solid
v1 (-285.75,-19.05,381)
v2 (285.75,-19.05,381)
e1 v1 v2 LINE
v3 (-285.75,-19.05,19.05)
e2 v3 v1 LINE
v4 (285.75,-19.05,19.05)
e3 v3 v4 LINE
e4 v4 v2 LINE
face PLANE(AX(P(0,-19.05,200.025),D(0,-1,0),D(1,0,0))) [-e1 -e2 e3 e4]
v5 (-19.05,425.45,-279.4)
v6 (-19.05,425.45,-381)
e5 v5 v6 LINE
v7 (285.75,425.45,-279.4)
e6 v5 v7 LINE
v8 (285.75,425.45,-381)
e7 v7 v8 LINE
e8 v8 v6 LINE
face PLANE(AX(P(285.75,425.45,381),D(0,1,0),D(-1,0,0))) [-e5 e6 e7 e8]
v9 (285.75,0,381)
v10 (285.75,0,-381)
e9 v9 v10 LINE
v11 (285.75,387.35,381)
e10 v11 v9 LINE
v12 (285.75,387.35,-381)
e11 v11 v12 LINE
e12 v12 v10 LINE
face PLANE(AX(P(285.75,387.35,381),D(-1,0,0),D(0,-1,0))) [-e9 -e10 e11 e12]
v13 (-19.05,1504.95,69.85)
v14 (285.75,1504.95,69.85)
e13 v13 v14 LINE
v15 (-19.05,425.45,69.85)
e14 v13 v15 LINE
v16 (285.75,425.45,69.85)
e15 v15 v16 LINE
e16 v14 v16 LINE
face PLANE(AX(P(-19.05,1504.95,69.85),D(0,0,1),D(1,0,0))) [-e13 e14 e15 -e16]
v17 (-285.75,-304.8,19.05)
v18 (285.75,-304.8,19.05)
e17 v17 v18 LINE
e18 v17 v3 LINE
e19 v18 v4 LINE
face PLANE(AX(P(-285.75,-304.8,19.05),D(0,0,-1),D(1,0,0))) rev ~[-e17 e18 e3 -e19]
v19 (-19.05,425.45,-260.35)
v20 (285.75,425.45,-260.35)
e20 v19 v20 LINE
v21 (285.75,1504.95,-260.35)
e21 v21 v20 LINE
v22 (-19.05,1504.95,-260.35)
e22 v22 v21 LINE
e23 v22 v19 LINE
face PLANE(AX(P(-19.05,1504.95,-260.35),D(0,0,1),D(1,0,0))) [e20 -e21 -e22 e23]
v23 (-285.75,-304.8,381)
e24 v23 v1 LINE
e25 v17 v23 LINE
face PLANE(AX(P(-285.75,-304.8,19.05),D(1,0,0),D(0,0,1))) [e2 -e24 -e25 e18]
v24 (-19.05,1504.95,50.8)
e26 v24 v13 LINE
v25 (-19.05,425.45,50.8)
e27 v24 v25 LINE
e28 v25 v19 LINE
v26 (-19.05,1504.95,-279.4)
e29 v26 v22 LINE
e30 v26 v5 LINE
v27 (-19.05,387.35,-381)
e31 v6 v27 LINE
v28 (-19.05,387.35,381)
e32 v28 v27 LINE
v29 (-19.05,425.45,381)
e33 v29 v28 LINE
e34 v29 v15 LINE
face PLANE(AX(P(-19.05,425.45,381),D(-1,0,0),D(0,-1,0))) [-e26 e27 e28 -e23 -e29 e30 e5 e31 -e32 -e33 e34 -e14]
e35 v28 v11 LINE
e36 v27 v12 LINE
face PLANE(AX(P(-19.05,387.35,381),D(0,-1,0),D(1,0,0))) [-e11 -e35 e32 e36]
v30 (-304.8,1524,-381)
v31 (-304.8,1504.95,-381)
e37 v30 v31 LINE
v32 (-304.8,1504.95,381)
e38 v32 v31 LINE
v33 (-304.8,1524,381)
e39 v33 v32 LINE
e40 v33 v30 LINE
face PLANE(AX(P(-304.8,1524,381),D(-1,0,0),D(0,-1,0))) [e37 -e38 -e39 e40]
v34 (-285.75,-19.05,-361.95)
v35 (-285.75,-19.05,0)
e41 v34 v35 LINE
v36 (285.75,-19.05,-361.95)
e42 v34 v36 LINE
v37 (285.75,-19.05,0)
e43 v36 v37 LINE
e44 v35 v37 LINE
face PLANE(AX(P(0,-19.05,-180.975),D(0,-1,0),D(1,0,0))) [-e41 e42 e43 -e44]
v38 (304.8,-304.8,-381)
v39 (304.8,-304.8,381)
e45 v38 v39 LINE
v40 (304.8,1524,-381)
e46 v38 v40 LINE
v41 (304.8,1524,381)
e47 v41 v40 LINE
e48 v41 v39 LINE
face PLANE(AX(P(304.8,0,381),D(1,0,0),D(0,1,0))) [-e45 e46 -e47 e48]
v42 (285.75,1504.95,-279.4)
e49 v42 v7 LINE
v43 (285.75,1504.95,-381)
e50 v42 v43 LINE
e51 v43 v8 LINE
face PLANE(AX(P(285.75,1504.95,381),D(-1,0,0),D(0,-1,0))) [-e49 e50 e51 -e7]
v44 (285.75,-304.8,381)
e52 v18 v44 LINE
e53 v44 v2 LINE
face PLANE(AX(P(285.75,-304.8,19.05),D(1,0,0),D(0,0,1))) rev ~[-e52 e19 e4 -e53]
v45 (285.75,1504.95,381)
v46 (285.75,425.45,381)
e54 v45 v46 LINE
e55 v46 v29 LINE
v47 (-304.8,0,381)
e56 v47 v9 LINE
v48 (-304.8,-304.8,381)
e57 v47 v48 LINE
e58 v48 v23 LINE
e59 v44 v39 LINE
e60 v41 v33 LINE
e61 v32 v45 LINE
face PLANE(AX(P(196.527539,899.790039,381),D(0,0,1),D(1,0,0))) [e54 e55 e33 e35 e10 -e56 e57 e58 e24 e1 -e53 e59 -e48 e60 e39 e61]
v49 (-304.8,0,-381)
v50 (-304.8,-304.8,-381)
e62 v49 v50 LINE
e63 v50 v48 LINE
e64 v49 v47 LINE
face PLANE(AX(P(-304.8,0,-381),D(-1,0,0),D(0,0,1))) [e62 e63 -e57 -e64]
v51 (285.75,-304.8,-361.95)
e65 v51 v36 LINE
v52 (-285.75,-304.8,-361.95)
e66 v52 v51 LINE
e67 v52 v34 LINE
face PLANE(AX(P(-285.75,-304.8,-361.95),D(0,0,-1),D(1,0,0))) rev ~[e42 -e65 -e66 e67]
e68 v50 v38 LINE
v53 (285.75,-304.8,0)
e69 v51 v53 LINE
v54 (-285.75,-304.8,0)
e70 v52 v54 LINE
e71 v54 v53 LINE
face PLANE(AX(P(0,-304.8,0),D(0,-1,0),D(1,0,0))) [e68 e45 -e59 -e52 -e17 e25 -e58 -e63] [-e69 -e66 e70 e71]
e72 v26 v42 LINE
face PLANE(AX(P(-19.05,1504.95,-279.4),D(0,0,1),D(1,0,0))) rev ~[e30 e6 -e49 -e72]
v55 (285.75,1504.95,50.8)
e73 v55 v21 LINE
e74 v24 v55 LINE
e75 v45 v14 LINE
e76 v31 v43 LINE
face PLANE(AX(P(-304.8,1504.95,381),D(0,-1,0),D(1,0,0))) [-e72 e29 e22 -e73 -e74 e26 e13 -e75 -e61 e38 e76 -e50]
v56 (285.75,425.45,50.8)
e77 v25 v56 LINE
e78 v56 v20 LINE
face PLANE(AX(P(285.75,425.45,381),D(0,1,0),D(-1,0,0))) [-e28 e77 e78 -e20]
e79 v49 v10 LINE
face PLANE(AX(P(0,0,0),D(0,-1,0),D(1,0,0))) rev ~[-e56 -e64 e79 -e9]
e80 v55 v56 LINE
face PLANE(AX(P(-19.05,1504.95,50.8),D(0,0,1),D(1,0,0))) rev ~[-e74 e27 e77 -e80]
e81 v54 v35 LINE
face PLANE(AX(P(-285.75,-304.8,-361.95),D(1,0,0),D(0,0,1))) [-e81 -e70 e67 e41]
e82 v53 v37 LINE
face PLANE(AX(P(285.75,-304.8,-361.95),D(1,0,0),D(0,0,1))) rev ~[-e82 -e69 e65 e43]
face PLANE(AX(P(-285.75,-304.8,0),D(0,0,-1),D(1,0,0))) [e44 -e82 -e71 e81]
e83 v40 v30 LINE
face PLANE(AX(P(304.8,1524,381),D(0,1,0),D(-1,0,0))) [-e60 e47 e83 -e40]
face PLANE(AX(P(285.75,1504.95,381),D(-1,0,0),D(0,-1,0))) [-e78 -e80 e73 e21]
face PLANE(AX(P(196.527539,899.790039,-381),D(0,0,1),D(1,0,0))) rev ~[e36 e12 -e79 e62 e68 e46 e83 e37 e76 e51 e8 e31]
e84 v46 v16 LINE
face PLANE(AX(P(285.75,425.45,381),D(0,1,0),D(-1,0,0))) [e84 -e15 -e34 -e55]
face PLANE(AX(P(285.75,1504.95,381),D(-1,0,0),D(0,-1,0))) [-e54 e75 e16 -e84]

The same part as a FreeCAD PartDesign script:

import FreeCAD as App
import Part
import Sketcher

V = App.Vector
Q = App.Units.Quantity

doc = App.newDocument("Part")
body = doc.addObject("PartDesign::Body", "Body")

# Sketch on XZ plane
sketch1 = body.newObject("Sketcher::SketchObject", "Sketch")
sketch1.AttachmentSupport = (doc.getObject("XZ_Plane"), [""])
sketch1.MapMode = "FlatFace"
sketch1.addGeometry(Part.LineSegment(V(-304.8, 381, 0), V(-304.8, -381, 0)), False)
sketch1.addGeometry(Part.LineSegment(V(-304.8, -381, 0), V(304.8, -381, 0)), False)
sketch1.addGeometry(Part.LineSegment(V(304.8, -381, 0), V(304.8, 381, 0)), False)
sketch1.addGeometry(Part.LineSegment(V(304.8, 381, 0), V(-304.8, 381, 0)), False)
sketch1.addConstraint(Sketcher.Constraint("Coincident", 0, 2, 1, 1))
sketch1.addConstraint(Sketcher.Constraint("Coincident", 1, 2, 2, 1))
sketch1.addConstraint(Sketcher.Constraint("Coincident", 2, 2, 3, 1))
sketch1.addConstraint(Sketcher.Constraint("Coincident", 3, 2, 0, 1))
sketch1.addConstraint(Sketcher.Constraint("Vertical", 0))
sketch1.addConstraint(Sketcher.Constraint("Horizontal", 1))
sketch1.addConstraint(Sketcher.Constraint("Vertical", 2))
sketch1.addConstraint(Sketcher.Constraint("Horizontal", 3))
sketch1.addConstraint(Sketcher.Constraint("Symmetric", 0, 2, 2, 2, -1, 1))
sketch1.addConstraint(Sketcher.Constraint("DistanceX", 1, 1, 1, 2, Q("24 in")))
sketch1.addConstraint(Sketcher.Constraint("DistanceY", 0, 2, 0, 1, Q("30 in")))
pad1 = body.newObject("PartDesign::Pad", "Pad")
pad1.Profile = sketch1
pad1.Length = Q("12 in")

# Sketch on XZ plane
sketch2 = body.newObject("Sketcher::SketchObject", "Sketch001")
sketch2.AttachmentSupport = (doc.getObject("XZ_Plane"), [""])
sketch2.MapMode = "FlatFace"
sketch2.AttachmentOffset = App.Placement(V(0, 0, 12 * 25.4), App.Rotation())
sketch2.addGeometry(Part.LineSegment(V(-285.75, 381, 0), V(-285.75, 19.05, 0)), False)
sketch2.addGeometry(Part.LineSegment(V(-285.75, 19.05, 0), V(285.75, 19.05, 0)), False)
sketch2.addGeometry(Part.LineSegment(V(285.75, 19.05, 0), V(285.75, 381, 0)), False)
sketch2.addGeometry(Part.LineSegment(V(285.75, 381, 0), V(-285.75, 381, 0)), False)
sketch2.addGeometry(Part.LineSegment(V(-285.75, 0, 0), V(-285.75, -361.95, 0)), False)
sketch2.addGeometry(Part.LineSegment(V(-285.75, -361.95, 0), V(285.75, -361.95, 0)), False)
sketch2.addGeometry(Part.LineSegment(V(285.75, -361.95, 0), V(285.75, 0, 0)), False)
sketch2.addGeometry(Part.LineSegment(V(285.75, 0, 0), V(-285.75, 0, 0)), False)
sketch2.addConstraint(Sketcher.Constraint("Coincident", 0, 2, 1, 1))
sketch2.addConstraint(Sketcher.Constraint("Coincident", 1, 2, 2, 1))
sketch2.addConstraint(Sketcher.Constraint("Coincident", 2, 2, 3, 1))
sketch2.addConstraint(Sketcher.Constraint("Coincident", 3, 2, 0, 1))
sketch2.addConstraint(Sketcher.Constraint("Coincident", 4, 2, 5, 1))
sketch2.addConstraint(Sketcher.Constraint("Coincident", 5, 2, 6, 1))
sketch2.addConstraint(Sketcher.Constraint("Coincident", 6, 2, 7, 1))
sketch2.addConstraint(Sketcher.Constraint("Coincident", 7, 2, 4, 1))
sketch2.addConstraint(Sketcher.Constraint("Vertical", 0))
sketch2.addConstraint(Sketcher.Constraint("Horizontal", 1))
sketch2.addConstraint(Sketcher.Constraint("Vertical", 2))
sketch2.addConstraint(Sketcher.Constraint("Horizontal", 3))
sketch2.addConstraint(Sketcher.Constraint("Vertical", 4))
sketch2.addConstraint(Sketcher.Constraint("Horizontal", 5))
sketch2.addConstraint(Sketcher.Constraint("Vertical", 6))
sketch2.addConstraint(Sketcher.Constraint("Horizontal", 7))
sketch2.addConstraint(Sketcher.Constraint("Symmetric", 6, 2, 7, 2, -1, 1))
sketch2.addConstraint(Sketcher.Constraint("Vertical", 3, 2, 4, 2))
sketch2.addConstraint(Sketcher.Constraint("Vertical", 2, 2, 5, 2))
sketch2.addConstraint(Sketcher.Constraint("Equal", 2, 4))
sketch2.addConstraint(Sketcher.Constraint("DistanceX", 1, 1, 1, 2, Q("22.5 in")))
sketch2.addConstraint(Sketcher.Constraint("DistanceY", -1, 1, 2, 2, Q("15 in")))
sketch2.addConstraint(Sketcher.Constraint("DistanceY", 0, 2, 0, 1, Q("14.25 in")))
pocket1 = body.newObject("PartDesign::Pocket", "Pocket")
pocket1.Profile = sketch2
pocket1.Length = Q("11.25 in")

# Sketch on XY plane
sketch3 = body.newObject("Sketcher::SketchObject", "Sketch002")
sketch3.AttachmentSupport = (doc.getObject("XY_Plane"), [""])
sketch3.MapMode = "FlatFace"
sketch3.AttachmentOffset = App.Placement(V(0, 0, 15 * 25.4), App.Rotation())
sketch3.addGeometry(Part.LineSegment(V(285.75, 0, 0), V(304.8, 0, 0)), False)
sketch3.addGeometry(Part.LineSegment(V(304.8, 0, 0), V(304.8, 1524, 0)), False)
sketch3.addGeometry(Part.LineSegment(V(304.8, 1524, 0), V(-304.8, 1524, 0)), False)
sketch3.addGeometry(Part.LineSegment(V(-304.8, 1524, 0), V(-304.8, 1504.95, 0)), False)
sketch3.addGeometry(Part.LineSegment(V(-304.8, 1504.95, 0), V(285.75, 1504.95, 0)), False)
sketch3.addGeometry(Part.LineSegment(V(285.75, 1504.95, 0), V(285.75, 425.45, 0)), False)
sketch3.addGeometry(Part.LineSegment(V(285.75, 425.45, 0), V(-19.05, 425.45, 0)), False)
sketch3.addGeometry(Part.LineSegment(V(-19.05, 425.45, 0), V(-19.05, 387.35, 0)), False)
sketch3.addGeometry(Part.LineSegment(V(-19.05, 387.35, 0), V(285.75, 387.35, 0)), False)
sketch3.addGeometry(Part.LineSegment(V(285.75, 387.35, 0), V(285.75, 0, 0)), False)
sketch3.addConstraint(Sketcher.Constraint("Coincident", 0, 2, 1, 1))
sketch3.addConstraint(Sketcher.Constraint("Coincident", 1, 2, 2, 1))
sketch3.addConstraint(Sketcher.Constraint("Coincident", 2, 2, 3, 1))
sketch3.addConstraint(Sketcher.Constraint("Coincident", 3, 2, 4, 1))
sketch3.addConstraint(Sketcher.Constraint("Coincident", 4, 2, 5, 1))
sketch3.addConstraint(Sketcher.Constraint("Coincident", 5, 2, 6, 1))
sketch3.addConstraint(Sketcher.Constraint("Coincident", 6, 2, 7, 1))
sketch3.addConstraint(Sketcher.Constraint("Coincident", 7, 2, 8, 1))
sketch3.addConstraint(Sketcher.Constraint("Coincident", 8, 2, 9, 1))
sketch3.addConstraint(Sketcher.Constraint("Coincident", 9, 2, 0, 1))
sketch3.addConstraint(Sketcher.Constraint("Horizontal", 0))
sketch3.addConstraint(Sketcher.Constraint("Vertical", 1))
sketch3.addConstraint(Sketcher.Constraint("Horizontal", 2))
sketch3.addConstraint(Sketcher.Constraint("Vertical", 3))
sketch3.addConstraint(Sketcher.Constraint("Horizontal", 4))
sketch3.addConstraint(Sketcher.Constraint("Vertical", 5))
sketch3.addConstraint(Sketcher.Constraint("Horizontal", 6))
sketch3.addConstraint(Sketcher.Constraint("Vertical", 7))
sketch3.addConstraint(Sketcher.Constraint("Horizontal", 8))
sketch3.addConstraint(Sketcher.Constraint("Vertical", 9))
sketch3.addConstraint(Sketcher.Constraint("PointOnObject", 0, 2, -1))
sketch3.addConstraint(Sketcher.Constraint("Vertical", 5, 2, 8, 2))
sketch3.addConstraint(Sketcher.Constraint("Equal", 0, 3))
sketch3.addConstraint(Sketcher.Constraint("DistanceX", 2, 2, 2, 1, Q("24 in")))
sketch3.addConstraint(Sketcher.Constraint("DistanceX", 6, 2, 6, 1, Q("12 in")))
sketch3.addConstraint(Sketcher.Constraint("DistanceY", 1, 1, 1, 2, Q("60 in")))
sketch3.addConstraint(Sketcher.Constraint("DistanceY", 5, 2, 5, 1, Q("42.5 in")))
sketch3.addConstraint(Sketcher.Constraint("DistanceY", 7, 2, 7, 1, Q("1.5 in")))
sketch3.addConstraint(Sketcher.Constraint("DistanceX", -1, 1, 0, 2, Q("12 in")))
sketch3.addConstraint(Sketcher.Constraint("DistanceX", 0, 1, 0, 2, Q("0.75 in")))
pad2 = body.newObject("PartDesign::Pad", "Pad001")
pad2.Profile = sketch3
pad2.Length = Q("30 in")
pad2.Reversed = True

# Sketch on XZ plane
sketch4 = body.newObject("Sketcher::SketchObject", "Sketch003")
sketch4.AttachmentSupport = (doc.getObject("XZ_Plane"), [""])
sketch4.MapMode = "FlatFace"
sketch4.AttachmentOffset = App.Placement(V(0, 0, -59.25 * 25.4), App.Rotation())
sketch4.addGeometry(Part.LineSegment(V(-19.05, -260.35, 0), V(-19.05, -279.4, 0)), False)
sketch4.addGeometry(Part.LineSegment(V(-19.05, -279.4, 0), V(285.75, -279.4, 0)), False)
sketch4.addGeometry(Part.LineSegment(V(285.75, -279.4, 0), V(285.75, -260.35, 0)), False)
sketch4.addGeometry(Part.LineSegment(V(285.75, -260.35, 0), V(-19.05, -260.35, 0)), False)
sketch4.addGeometry(Part.LineSegment(V(-19.05, 69.85, 0), V(-19.05, 50.8, 0)), False)
sketch4.addGeometry(Part.LineSegment(V(-19.05, 50.8, 0), V(285.75, 50.8, 0)), False)
sketch4.addGeometry(Part.LineSegment(V(285.75, 50.8, 0), V(285.75, 69.85, 0)), False)
sketch4.addGeometry(Part.LineSegment(V(285.75, 69.85, 0), V(-19.05, 69.85, 0)), False)
sketch4.addConstraint(Sketcher.Constraint("Coincident", 0, 2, 1, 1))
sketch4.addConstraint(Sketcher.Constraint("Coincident", 1, 2, 2, 1))
sketch4.addConstraint(Sketcher.Constraint("Coincident", 2, 2, 3, 1))
sketch4.addConstraint(Sketcher.Constraint("Coincident", 3, 2, 0, 1))
sketch4.addConstraint(Sketcher.Constraint("Coincident", 4, 2, 5, 1))
sketch4.addConstraint(Sketcher.Constraint("Coincident", 5, 2, 6, 1))
sketch4.addConstraint(Sketcher.Constraint("Coincident", 6, 2, 7, 1))
sketch4.addConstraint(Sketcher.Constraint("Coincident", 7, 2, 4, 1))
sketch4.addConstraint(Sketcher.Constraint("Vertical", 0))
sketch4.addConstraint(Sketcher.Constraint("Horizontal", 1))
sketch4.addConstraint(Sketcher.Constraint("Vertical", 2))
sketch4.addConstraint(Sketcher.Constraint("Horizontal", 3))
sketch4.addConstraint(Sketcher.Constraint("Vertical", 4))
sketch4.addConstraint(Sketcher.Constraint("Horizontal", 5))
sketch4.addConstraint(Sketcher.Constraint("Vertical", 6))
sketch4.addConstraint(Sketcher.Constraint("Horizontal", 7))
sketch4.addConstraint(Sketcher.Constraint("Vertical", 3, 2, 4, 2))
sketch4.addConstraint(Sketcher.Constraint("Vertical", 2, 2, 5, 2))
sketch4.addConstraint(Sketcher.Constraint("Equal", 2, 4))
sketch4.addConstraint(Sketcher.Constraint("DistanceX", 1, 1, 1, 2, Q("12 in")))
sketch4.addConstraint(Sketcher.Constraint("DistanceY", 0, 2, -1, 1, Q("11 in")))
sketch4.addConstraint(Sketcher.Constraint("DistanceY", -1, 1, 4, 2, Q("2 in")))
sketch4.addConstraint(Sketcher.Constraint("DistanceY", 0, 2, 0, 1, Q("0.75 in")))
sketch4.addConstraint(Sketcher.Constraint("DistanceX", 0, 2, -1, 1, Q("0.75 in")))
pad3 = body.newObject("PartDesign::Pad", "Pad002")
pad3.Profile = sketch4
pad3.Length = Q("42.5 in")

doc.recompute()
